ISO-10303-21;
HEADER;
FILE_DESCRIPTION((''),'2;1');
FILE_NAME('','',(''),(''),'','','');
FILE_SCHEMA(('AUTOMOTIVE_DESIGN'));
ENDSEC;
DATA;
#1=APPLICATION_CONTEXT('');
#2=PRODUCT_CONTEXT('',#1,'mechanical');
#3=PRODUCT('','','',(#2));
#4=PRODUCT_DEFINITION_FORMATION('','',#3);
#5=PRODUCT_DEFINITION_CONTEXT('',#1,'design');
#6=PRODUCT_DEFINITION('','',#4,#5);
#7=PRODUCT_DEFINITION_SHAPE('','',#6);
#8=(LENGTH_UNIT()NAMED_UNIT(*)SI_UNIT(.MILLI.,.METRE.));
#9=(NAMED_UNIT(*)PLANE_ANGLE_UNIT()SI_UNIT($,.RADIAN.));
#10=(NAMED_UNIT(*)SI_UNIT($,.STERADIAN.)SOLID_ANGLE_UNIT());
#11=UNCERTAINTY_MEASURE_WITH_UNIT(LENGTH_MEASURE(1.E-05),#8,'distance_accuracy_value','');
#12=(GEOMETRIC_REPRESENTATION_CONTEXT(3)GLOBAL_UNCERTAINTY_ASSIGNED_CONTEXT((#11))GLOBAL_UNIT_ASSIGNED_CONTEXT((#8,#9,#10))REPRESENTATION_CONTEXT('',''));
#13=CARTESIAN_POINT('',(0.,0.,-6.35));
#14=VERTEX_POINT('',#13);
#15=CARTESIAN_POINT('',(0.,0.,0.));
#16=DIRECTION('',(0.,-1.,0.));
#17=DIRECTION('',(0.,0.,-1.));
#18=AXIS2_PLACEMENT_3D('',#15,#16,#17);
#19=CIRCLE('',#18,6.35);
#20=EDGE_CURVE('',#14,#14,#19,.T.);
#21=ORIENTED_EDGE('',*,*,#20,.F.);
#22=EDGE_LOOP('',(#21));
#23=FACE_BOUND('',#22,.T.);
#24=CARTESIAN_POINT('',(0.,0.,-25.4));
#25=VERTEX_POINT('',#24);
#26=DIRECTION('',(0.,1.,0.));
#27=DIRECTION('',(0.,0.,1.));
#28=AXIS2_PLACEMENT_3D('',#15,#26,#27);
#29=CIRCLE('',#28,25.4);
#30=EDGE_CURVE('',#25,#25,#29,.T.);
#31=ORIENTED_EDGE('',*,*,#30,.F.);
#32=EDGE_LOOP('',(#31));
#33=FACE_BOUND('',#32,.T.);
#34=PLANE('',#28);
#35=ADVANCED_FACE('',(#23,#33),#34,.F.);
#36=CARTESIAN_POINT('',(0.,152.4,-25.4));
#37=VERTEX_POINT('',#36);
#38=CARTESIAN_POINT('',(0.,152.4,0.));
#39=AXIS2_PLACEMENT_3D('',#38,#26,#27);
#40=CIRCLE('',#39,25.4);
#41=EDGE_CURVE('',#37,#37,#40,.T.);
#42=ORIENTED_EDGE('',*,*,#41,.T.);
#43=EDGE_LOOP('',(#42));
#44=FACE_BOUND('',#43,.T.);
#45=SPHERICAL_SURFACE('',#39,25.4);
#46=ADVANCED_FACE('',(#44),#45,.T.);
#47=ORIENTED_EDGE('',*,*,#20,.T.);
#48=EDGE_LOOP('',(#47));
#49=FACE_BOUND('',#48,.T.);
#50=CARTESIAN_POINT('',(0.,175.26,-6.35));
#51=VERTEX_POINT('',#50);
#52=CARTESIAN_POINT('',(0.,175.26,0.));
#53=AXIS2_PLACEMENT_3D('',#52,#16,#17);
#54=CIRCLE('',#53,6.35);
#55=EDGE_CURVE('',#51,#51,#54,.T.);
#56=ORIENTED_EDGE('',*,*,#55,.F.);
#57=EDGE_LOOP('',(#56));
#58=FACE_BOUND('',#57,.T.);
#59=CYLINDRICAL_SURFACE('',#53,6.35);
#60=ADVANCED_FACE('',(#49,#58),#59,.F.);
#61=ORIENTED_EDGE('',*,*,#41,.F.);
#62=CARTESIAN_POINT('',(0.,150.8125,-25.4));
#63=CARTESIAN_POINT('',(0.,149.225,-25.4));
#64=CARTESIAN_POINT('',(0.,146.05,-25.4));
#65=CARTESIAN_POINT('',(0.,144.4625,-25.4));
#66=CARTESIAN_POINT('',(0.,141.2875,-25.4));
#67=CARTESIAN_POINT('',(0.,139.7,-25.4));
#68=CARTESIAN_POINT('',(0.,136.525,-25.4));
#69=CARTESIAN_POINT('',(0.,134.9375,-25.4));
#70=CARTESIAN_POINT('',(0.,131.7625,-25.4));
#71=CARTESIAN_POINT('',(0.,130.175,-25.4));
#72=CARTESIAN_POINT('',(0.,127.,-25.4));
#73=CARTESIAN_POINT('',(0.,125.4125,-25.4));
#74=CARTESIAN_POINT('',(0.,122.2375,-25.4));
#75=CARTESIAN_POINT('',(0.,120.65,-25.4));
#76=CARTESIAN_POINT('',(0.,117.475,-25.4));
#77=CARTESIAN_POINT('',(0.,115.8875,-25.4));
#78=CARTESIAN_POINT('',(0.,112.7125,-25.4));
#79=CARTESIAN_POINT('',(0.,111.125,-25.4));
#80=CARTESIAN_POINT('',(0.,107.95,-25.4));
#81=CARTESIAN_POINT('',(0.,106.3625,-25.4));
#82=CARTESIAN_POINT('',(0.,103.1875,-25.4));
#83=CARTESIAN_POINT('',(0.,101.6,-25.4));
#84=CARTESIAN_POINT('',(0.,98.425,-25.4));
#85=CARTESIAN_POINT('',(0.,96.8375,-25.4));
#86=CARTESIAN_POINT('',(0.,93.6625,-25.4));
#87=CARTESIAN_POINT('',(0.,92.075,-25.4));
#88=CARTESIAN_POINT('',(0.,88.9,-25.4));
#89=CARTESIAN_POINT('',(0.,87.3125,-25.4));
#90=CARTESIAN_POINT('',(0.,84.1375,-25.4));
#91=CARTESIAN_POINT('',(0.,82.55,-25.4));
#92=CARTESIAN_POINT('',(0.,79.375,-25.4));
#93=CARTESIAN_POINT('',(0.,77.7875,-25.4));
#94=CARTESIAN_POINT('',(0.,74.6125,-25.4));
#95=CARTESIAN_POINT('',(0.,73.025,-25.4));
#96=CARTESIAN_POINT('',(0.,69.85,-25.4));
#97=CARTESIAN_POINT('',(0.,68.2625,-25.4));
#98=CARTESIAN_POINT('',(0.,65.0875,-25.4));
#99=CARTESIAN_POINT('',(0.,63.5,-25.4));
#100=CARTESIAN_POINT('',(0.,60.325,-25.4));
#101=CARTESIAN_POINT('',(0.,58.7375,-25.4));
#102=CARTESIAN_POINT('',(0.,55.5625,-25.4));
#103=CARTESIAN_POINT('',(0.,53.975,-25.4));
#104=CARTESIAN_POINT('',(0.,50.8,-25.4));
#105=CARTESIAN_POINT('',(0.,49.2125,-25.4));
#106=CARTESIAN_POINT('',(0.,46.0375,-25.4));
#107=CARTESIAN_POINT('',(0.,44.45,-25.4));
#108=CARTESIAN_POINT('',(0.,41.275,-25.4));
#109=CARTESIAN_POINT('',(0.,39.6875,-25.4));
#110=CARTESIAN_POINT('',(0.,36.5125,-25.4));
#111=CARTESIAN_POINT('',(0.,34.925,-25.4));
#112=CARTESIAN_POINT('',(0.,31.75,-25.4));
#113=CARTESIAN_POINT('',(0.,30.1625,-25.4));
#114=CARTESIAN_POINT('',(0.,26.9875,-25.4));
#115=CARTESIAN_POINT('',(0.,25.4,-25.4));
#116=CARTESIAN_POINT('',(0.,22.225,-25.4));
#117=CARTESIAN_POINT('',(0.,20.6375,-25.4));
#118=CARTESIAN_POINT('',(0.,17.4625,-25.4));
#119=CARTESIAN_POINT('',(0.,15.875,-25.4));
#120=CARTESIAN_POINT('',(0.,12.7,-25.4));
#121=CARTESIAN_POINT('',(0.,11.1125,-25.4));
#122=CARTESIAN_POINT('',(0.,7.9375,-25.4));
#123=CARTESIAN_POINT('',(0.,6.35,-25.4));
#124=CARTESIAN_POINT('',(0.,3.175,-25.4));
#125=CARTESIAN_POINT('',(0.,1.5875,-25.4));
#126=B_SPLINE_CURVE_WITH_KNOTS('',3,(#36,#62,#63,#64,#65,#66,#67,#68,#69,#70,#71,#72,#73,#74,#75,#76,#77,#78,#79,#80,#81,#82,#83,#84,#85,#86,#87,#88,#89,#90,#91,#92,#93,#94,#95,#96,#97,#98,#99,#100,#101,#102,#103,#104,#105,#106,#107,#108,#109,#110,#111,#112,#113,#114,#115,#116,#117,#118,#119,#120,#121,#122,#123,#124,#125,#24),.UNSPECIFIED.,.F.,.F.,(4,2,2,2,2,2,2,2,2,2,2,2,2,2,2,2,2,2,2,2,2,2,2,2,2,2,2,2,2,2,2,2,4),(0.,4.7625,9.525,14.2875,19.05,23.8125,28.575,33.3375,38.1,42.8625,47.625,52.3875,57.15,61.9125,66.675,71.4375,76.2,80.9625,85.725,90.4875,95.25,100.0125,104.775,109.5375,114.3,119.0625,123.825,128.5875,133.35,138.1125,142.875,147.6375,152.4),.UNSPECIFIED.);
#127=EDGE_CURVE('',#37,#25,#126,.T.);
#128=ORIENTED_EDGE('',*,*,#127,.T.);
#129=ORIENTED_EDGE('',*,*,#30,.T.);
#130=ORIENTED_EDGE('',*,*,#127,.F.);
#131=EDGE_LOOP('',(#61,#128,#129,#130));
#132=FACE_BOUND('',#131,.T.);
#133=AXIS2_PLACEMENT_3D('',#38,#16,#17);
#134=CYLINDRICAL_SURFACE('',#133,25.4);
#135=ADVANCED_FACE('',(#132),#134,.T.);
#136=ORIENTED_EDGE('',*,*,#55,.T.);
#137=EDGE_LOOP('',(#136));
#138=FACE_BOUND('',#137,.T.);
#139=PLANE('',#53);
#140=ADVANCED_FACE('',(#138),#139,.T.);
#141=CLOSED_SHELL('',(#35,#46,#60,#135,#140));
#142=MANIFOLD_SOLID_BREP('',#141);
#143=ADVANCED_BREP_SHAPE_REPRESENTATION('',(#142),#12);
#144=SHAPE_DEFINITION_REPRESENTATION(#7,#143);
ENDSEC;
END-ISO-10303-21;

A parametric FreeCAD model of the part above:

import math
import FreeCAD as App
import Part
import Sketcher
from FreeCAD import Vector
Q = App.Units.Quantity

doc = App.newDocument("Part")
body = doc.addObject("PartDesign::Body", "Body")

# Sketch on XZ plane
sketch1 = doc.addObject("Sketcher::SketchObject", "Sketch")
body.addObject(sketch1)
sketch1.AttachmentSupport = (doc.XZ_Plane, [""])
sketch1.MapMode = "FlatFace"
sketch1.addGeometry(Part.Circle(Vector(0, 0, 0), Vector(0, 0, 1), 25.4), False)
sketch1.addConstraint(Sketcher.Constraint("Coincident", 0, 3, -1, 1))
sketch1.addConstraint(Sketcher.Constraint("Diameter", 0, Q("2 in")))
pad1 = doc.addObject("PartDesign::Pad", "Pad")
body.addObject(pad1)
pad1.Profile = sketch1
pad1.Length = Q("6 in")
pad1.Reversed = True

# Sketch on XZ plane
sketch2 = doc.addObject("Sketcher::SketchObject", "Sketch001")
body.addObject(sketch2)
sketch2.AttachmentSupport = (doc.XZ_Plane, [""])
sketch2.MapMode = "FlatFace"
sketch2.AttachmentOffset = App.Placement(Vector(0, 0, -6 * 25.4), App.Rotation())
sketch2.addGeometry(Part.LineSegment(Vector(0, 25.4, 0), Vector(0, -25.4, 0)), False)
sketch2.addGeometry(Part.ArcOfCircle(Part.Circle(Vector(0, 0, 0), Vector(0, 0, 1), 25.4), math.radians(90), math.radians(270)), False)
sketch2.addConstraint(Sketcher.Constraint("Coincident", 0, 1, 1, 1))
sketch2.addConstraint(Sketcher.Constraint("Coincident", 1, 2, 0, 2))
sketch2.addConstraint(Sketcher.Constraint("Vertical", 0))
sketch2.addConstraint(Sketcher.Constraint("Coincident", 1, 3, -1, 1))
sketch2.addConstraint(Sketcher.Constraint("PointOnObject", 0, 1, -2))
sketch2.addConstraint(Sketcher.Constraint("Radius", 1, Q("1 in")))
revolution = doc.addObject("PartDesign::Revolution", "Revolution")
body.addObject(revolution)
revolution.Profile = sketch2
revolution.ReferenceAxis = (sketch2, ["V_Axis"])
revolution.Angle = 360

# Sketch on XZ plane
sketch3 = doc.addObject("Sketcher::SketchObject", "Sketch002")
body.addObject(sketch3)
sketch3.AttachmentSupport = (doc.XZ_Plane, [""])
sketch3.MapMode = "FlatFace"
sketch3.addGeometry(Part.Circle(Vector(0, 0, 0), Vector(0, 0, 1), 6.35), False)
sketch3.addConstraint(Sketcher.Constraint("Coincident", 0, 3, -1, 1))
sketch3.addConstraint(Sketcher.Constraint("Diameter", 0, Q("0.5 in")))
pocket1 = doc.addObject("PartDesign::Pocket", "Pocket")
body.addObject(pocket1)
pocket1.Profile = sketch3
pocket1.Length = Q("6.9 in")

doc.recompute()
